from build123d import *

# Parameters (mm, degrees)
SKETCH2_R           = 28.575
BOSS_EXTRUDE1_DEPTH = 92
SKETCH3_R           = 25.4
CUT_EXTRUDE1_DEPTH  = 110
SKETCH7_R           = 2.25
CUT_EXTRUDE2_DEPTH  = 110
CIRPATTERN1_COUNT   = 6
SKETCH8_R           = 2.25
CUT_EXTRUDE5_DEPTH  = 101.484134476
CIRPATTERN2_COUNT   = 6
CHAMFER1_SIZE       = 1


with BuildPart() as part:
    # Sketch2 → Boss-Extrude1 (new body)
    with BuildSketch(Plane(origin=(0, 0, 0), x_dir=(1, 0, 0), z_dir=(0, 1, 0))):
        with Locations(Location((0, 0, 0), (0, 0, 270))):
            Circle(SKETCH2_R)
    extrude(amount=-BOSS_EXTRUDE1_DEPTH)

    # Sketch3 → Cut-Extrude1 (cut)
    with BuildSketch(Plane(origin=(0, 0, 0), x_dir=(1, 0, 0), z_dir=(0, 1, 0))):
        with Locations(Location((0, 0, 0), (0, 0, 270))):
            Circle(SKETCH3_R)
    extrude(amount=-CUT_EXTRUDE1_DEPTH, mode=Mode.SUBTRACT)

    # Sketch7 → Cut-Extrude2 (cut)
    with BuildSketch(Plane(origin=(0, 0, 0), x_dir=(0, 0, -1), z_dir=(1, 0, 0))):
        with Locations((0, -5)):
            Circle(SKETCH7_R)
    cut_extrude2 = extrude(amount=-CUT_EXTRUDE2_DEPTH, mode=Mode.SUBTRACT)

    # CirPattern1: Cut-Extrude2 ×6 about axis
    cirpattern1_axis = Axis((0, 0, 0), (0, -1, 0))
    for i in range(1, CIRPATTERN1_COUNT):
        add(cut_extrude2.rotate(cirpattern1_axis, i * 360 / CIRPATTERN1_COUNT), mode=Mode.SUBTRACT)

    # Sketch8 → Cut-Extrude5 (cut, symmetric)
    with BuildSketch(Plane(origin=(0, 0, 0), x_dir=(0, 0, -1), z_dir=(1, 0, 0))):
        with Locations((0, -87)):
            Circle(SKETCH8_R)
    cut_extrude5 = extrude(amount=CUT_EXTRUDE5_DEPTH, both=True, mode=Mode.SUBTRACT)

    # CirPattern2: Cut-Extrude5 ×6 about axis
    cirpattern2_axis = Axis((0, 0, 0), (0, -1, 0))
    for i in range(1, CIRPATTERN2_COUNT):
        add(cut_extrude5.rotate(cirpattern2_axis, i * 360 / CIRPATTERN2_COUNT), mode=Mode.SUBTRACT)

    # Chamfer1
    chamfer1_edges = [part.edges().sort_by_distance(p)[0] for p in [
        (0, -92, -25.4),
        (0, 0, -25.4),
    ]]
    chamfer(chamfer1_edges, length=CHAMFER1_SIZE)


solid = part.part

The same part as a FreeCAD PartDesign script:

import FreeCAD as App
import Part
import Sketcher
from FreeCAD import Vector
Q = App.Units.Quantity


def edges_at(feature, points):
    """Names of the edges that pass closest to the given points."""
    edges = feature.Shape.Edges
    near = lambda p: min(range(len(edges)), key=lambda i: edges[i].distToShape(Part.Vertex(*p))[0])
    return sorted({f"Edge{near(p) + 1}" for p in points})

doc = App.newDocument("Part")
body = doc.addObject("PartDesign::Body", "Body")

# Sketch on XZ plane
sketch1 = body.newObject("Sketcher::SketchObject", "Sketch")
sketch1.AttachmentSupport = (doc.getObject("XZ_Plane"), [""])
sketch1.MapMode = "FlatFace"
sketch1.addGeometry(Part.Circle(Vector(0, 0, 0), Vector(0, 0, 1), 28.575), False)
sketch1.addConstraint([
    Sketcher.Constraint("Coincident", 0, 3, -1, 1),
    Sketcher.Constraint("Diameter", 0, Q("57.15 mm")),
])
pad1 = body.newObject("PartDesign::Pad", "Pad")
pad1.Profile = sketch1
pad1.Length = 92

# Sketch on XZ plane
sketch2 = body.newObject("Sketcher::SketchObject", "Sketch001")
sketch2.AttachmentSupport = (doc.getObject("XZ_Plane"), [""])
sketch2.MapMode = "FlatFace"
sketch2.addGeometry(Part.Circle(Vector(0, 0, 0), Vector(0, 0, 1), 25.4), False)
sketch2.addConstraint([
    Sketcher.Constraint("Coincident", 0, 3, -1, 1),
    Sketcher.Constraint("Diameter", 0, Q("50.8 mm")),
])
pocket1 = body.newObject("PartDesign::Pocket", "Pocket")
pocket1.Profile = sketch2
pocket1.Length = 110
pocket1.Reversed = True

# Sketch on YZ plane
sketch3 = body.newObject("Sketcher::SketchObject", "Sketch002")
sketch3.AttachmentSupport = (doc.getObject("YZ_Plane"), [""])
sketch3.MapMode = "FlatFace"
sketch3.addGeometry(Part.Circle(Vector(-5, 0, 0), Vector(0, 0, 1), 2.25), False)
sketch3.addConstraint([
    Sketcher.Constraint("PointOnObject", 0, 3, -1),
    Sketcher.Constraint("Diameter", 0, Q("4.5 mm")),
    Sketcher.Constraint("DistanceX", 0, 3, -1, 1, Q("5 mm")),
])
pocket2 = body.newObject("PartDesign::Pocket", "Pocket001")
pocket2.Profile = sketch3
pocket2.Length = 110
doc.recompute()

polarpattern = body.newObject("PartDesign::PolarPattern", "PolarPattern")
polarpattern.Originals = [pocket2]
polarpattern.Axis = (doc.getObject("Y_Axis"), [""])
polarpattern.Angle = 360
polarpattern.Occurrences = 6
body.Tip = polarpattern

# Sketch on YZ plane
sketch4 = body.newObject("Sketcher::SketchObject", "Sketch003")
sketch4.AttachmentSupport = (doc.getObject("YZ_Plane"), [""])
sketch4.MapMode = "FlatFace"
sketch4.addGeometry(Part.Circle(Vector(-87, 0, 0), Vector(0, 0, 1), 2.25), False)
sketch4.addConstraint([
    Sketcher.Constraint("PointOnObject", 0, 3, -1),
    Sketcher.Constraint("Diameter", 0, Q("4.5 mm")),
    Sketcher.Constraint("DistanceX", 0, 3, -1, 1, Q("87 mm")),
])
pocket3 = body.newObject("PartDesign::Pocket", "Pocket002")
pocket3.Profile = sketch4
pocket3.Length = 202.968269
pocket3.Midplane = True
doc.recompute()

polarpattern2 = body.newObject("PartDesign::PolarPattern", "PolarPattern001")
polarpattern2.Originals = [pocket3]
polarpattern2.Axis = (doc.getObject("Y_Axis"), [""])
polarpattern2.Angle = 360
polarpattern2.Occurrences = 6
body.Tip = polarpattern2
doc.recompute()

chamfer = body.newObject("PartDesign::Chamfer", "Chamfer")
chamfer.Base = (polarpattern2, edges_at(polarpattern2, [(0, -92, -25.4), (0, 0, -25.4)]))
chamfer.Size = 1

doc.recompute()
